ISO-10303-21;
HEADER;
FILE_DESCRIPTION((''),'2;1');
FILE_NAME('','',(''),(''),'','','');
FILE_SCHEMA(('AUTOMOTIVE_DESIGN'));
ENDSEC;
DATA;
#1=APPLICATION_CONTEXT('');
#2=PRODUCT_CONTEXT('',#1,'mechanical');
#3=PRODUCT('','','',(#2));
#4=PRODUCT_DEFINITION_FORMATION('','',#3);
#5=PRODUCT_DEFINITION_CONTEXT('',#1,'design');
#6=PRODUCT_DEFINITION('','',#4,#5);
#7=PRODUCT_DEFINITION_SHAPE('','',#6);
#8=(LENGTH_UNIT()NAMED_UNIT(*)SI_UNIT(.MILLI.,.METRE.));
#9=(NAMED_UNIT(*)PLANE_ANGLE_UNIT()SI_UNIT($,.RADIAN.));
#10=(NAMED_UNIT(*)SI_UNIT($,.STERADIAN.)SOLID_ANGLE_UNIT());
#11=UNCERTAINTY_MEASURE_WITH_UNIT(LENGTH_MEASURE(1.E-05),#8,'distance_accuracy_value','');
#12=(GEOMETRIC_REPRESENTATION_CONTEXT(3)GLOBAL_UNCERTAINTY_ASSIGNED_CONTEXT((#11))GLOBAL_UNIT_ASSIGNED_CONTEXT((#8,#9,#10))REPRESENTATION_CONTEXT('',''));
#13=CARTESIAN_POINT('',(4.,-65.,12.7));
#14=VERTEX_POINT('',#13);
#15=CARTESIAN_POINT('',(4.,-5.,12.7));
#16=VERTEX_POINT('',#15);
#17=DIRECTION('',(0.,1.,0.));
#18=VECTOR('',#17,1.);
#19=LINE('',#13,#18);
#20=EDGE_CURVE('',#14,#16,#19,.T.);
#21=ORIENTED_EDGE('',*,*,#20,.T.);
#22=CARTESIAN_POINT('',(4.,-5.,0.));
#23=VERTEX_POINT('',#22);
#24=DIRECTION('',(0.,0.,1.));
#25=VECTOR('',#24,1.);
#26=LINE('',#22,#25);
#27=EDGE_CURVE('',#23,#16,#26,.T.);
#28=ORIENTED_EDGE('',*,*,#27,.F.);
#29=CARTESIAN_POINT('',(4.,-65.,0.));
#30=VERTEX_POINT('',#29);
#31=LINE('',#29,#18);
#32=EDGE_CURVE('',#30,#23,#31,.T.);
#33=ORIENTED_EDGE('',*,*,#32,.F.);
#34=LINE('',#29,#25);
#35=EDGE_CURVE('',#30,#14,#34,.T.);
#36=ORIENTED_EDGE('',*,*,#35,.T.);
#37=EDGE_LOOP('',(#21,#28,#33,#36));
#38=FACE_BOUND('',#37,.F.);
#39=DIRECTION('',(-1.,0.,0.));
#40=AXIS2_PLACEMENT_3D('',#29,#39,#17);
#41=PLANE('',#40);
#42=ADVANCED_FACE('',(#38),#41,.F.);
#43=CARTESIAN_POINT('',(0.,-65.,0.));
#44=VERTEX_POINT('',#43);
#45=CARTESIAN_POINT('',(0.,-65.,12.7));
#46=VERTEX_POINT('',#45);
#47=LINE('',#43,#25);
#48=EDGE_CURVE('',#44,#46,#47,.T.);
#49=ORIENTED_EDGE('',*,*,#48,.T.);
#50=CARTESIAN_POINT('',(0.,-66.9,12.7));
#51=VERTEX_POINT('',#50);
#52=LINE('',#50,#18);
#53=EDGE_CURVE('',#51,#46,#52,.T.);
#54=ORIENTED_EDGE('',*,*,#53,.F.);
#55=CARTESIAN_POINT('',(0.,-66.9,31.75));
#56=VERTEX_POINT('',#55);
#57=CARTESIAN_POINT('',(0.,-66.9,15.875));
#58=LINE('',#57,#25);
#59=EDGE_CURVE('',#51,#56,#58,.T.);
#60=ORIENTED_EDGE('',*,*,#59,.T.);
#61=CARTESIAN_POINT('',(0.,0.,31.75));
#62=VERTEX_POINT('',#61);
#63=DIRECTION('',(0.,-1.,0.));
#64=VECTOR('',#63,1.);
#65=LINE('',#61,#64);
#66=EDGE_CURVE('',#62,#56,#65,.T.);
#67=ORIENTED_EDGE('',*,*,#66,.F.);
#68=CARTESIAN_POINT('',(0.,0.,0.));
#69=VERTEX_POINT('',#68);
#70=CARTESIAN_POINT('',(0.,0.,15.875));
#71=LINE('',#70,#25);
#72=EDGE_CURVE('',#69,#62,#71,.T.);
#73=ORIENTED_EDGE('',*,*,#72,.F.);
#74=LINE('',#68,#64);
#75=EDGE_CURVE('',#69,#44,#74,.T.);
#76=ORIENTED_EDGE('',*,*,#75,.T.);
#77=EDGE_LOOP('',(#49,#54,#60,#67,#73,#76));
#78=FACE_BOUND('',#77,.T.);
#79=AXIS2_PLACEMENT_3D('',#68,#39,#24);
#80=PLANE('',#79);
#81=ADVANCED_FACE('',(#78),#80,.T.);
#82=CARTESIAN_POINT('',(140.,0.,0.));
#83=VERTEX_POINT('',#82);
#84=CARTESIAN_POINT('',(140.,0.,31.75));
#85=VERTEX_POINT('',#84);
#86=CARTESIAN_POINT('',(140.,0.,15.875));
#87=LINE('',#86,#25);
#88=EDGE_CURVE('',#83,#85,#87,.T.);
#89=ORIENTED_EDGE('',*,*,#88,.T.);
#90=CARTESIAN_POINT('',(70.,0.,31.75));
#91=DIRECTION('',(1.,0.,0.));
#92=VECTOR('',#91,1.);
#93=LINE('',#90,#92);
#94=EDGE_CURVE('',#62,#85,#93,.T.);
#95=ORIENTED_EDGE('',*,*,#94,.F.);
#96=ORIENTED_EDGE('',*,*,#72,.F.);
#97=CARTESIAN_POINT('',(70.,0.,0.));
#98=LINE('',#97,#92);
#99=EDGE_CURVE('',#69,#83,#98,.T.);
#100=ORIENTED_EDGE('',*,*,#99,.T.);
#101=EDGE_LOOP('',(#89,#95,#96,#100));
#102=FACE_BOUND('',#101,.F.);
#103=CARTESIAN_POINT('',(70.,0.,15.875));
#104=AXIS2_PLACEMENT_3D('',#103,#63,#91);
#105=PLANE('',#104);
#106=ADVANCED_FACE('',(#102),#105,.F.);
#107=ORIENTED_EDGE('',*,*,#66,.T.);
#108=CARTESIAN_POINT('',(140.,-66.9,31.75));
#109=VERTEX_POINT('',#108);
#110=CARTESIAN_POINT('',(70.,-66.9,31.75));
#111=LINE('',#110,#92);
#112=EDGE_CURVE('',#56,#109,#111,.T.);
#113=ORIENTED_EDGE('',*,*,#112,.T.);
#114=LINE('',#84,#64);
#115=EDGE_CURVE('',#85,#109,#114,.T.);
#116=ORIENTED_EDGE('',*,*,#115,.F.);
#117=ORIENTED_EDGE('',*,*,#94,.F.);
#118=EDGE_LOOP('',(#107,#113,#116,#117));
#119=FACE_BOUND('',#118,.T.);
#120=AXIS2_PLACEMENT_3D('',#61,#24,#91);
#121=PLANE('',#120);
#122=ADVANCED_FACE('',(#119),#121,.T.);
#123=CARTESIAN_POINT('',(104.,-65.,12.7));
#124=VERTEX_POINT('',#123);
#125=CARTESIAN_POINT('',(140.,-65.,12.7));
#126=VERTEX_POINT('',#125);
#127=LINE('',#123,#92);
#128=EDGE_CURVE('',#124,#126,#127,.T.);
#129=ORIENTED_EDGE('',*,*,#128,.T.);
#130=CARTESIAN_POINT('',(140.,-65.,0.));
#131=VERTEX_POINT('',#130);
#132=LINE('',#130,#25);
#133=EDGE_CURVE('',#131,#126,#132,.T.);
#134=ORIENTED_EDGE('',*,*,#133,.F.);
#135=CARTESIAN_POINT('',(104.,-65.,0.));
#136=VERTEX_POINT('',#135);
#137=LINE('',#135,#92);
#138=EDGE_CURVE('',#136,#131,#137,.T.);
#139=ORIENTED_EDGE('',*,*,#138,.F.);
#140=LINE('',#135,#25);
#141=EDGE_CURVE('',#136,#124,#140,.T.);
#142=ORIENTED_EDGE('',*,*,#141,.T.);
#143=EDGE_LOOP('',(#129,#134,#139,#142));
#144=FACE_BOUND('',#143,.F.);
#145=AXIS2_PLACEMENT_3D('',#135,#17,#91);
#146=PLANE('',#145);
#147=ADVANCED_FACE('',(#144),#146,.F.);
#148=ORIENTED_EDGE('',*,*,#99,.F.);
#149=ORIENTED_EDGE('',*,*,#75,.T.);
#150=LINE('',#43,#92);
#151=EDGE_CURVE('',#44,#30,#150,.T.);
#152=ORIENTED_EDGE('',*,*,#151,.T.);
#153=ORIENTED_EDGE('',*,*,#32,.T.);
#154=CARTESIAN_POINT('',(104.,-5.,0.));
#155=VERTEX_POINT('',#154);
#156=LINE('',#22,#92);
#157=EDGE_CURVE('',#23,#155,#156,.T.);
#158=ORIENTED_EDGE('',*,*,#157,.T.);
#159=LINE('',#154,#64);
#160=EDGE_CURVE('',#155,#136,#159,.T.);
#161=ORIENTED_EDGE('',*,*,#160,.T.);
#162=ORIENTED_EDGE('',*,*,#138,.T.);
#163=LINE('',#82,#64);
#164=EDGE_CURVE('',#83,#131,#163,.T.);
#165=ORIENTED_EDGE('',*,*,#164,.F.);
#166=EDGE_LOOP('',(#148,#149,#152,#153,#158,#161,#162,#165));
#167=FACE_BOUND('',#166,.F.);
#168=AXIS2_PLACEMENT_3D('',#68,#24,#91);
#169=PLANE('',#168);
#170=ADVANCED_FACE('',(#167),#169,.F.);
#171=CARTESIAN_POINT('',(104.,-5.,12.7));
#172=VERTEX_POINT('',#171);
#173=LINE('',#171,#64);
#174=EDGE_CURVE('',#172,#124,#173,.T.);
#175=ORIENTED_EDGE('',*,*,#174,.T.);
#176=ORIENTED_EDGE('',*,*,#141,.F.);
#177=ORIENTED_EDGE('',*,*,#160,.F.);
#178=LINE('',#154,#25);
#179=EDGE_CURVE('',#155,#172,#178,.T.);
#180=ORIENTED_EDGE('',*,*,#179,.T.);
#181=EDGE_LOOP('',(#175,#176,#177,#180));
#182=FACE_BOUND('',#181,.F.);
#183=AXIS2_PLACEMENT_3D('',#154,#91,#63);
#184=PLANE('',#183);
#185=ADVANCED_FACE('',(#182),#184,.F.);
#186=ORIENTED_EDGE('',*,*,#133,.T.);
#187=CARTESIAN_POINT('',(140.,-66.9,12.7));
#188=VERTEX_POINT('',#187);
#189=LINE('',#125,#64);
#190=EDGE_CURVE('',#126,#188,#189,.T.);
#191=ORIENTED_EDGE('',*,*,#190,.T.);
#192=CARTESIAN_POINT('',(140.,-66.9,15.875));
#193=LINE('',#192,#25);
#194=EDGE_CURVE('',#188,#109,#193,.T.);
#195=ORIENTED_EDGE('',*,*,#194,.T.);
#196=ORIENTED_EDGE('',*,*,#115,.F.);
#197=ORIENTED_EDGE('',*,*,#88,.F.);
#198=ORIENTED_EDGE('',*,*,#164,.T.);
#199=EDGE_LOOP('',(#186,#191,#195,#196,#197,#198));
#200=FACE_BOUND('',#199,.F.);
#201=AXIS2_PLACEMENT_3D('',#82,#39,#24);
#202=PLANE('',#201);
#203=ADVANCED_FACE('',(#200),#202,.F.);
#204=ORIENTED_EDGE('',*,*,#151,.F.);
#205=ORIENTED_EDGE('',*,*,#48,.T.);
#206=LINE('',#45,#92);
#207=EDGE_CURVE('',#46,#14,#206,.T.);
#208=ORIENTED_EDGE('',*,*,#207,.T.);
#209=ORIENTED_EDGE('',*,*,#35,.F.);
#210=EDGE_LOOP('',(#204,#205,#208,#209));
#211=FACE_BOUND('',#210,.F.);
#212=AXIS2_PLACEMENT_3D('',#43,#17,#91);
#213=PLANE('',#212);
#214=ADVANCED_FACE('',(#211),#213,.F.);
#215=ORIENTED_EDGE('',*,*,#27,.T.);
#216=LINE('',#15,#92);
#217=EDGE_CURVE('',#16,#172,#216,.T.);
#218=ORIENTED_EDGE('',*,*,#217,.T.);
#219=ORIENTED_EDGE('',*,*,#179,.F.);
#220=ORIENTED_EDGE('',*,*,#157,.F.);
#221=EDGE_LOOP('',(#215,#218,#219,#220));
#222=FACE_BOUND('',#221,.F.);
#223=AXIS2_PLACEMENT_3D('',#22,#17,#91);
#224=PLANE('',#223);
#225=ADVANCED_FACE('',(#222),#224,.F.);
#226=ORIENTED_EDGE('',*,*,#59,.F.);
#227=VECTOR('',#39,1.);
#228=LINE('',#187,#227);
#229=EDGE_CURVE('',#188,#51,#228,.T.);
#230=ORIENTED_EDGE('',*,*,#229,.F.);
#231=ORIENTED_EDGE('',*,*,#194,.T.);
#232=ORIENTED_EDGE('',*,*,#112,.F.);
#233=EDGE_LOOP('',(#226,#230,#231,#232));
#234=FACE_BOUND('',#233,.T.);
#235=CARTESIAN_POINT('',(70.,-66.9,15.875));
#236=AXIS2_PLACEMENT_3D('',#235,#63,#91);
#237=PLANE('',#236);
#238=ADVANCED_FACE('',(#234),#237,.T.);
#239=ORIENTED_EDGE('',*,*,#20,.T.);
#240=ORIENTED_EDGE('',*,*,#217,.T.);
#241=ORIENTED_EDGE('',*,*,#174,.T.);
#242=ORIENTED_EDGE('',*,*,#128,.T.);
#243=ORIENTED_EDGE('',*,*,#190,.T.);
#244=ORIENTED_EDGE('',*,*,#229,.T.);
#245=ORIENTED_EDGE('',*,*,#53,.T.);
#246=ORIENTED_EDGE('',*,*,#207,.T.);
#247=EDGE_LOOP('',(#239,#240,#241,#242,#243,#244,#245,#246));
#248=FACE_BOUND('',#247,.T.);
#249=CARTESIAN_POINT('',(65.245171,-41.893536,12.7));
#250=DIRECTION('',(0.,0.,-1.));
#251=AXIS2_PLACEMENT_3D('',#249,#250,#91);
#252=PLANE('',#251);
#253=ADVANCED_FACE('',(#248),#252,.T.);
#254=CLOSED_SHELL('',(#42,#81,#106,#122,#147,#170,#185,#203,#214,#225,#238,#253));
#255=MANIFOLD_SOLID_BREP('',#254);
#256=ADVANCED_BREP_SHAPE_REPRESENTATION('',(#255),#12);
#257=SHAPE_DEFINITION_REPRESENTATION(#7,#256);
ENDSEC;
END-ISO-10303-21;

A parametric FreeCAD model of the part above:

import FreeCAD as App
import Part
import Sketcher
Q = App.Units.Quantity


def add_polygon(sketch, points):
    """Adds a closed chain of lines whose ends are joined by coincident constraints."""
    first, n = sketch.GeometryCount, len(points)
    for a, b in zip(points, points[1:] + points[:1]):
        sketch.addGeometry(Part.LineSegment(App.Vector(*a, 0), App.Vector(*b, 0)), False)
    for i in range(n):
        sketch.addConstraint(Sketcher.Constraint("Coincident", first + i, 2, first + (i + 1) % n, 1))

doc = App.newDocument("Part")
body = doc.addObject("PartDesign::Body", "Body")

# Sketch on XZ plane
sketch1 = body.newObject("Sketcher::SketchObject", "Sketch")
sketch1.AttachmentSupport = (doc.getObject("XZ_Plane"), [""])
sketch1.MapMode = "FlatFace"
add_polygon(sketch1, [(0, 31.75), (0, 0), (140, 0), (140, 31.75)])  # lines 0-3
sketch1.addConstraint([
    Sketcher.Constraint("Vertical", 0),
    Sketcher.Constraint("Horizontal", 1),
    Sketcher.Constraint("Vertical", 2),
    Sketcher.Constraint("Horizontal", 3),
    Sketcher.Constraint("Coincident", 0, 2, -1, 1),
    Sketcher.Constraint("DistanceX", 1, 1, 1, 2, Q("140 mm")),
    Sketcher.Constraint("DistanceY", 0, 2, 0, 1, Q("31.75 mm")),
])
pad1 = body.newObject("PartDesign::Pad", "Pad")
pad1.Profile = sketch1
pad1.Length = 66.9

# Sketch on XY plane
sketch2 = body.newObject("Sketcher::SketchObject", "Sketch001")
sketch2.AttachmentSupport = (doc.getObject("XY_Plane"), [""])
sketch2.MapMode = "FlatFace"
add_polygon(sketch2, [(0, -66.9), (0, -65), (4, -65), (4, -5), (104, -5), (104, -65), (140, -65), (140, -66.9)])  # lines 0-7
sketch2.addConstraint([
    Sketcher.Constraint("Vertical", 0),
    Sketcher.Constraint("Horizontal", 1),
    Sketcher.Constraint("Vertical", 2),
    Sketcher.Constraint("Horizontal", 3),
    Sketcher.Constraint("Vertical", 4),
    Sketcher.Constraint("Horizontal", 5),
    Sketcher.Constraint("Vertical", 6),
    Sketcher.Constraint("Horizontal", 7),
    Sketcher.Constraint("PointOnObject", 0, 2, -2),
    Sketcher.Constraint("Horizontal", 1, 2, 4, 2),
    Sketcher.Constraint("DistanceX", 1, 1, 1, 2, Q("4 mm")),
    Sketcher.Constraint("DistanceX", 3, 1, 3, 2, Q("100 mm")),
    Sketcher.Constraint("DistanceX", 5, 1, 5, 2, Q("36 mm")),
    Sketcher.Constraint("DistanceY", 2, 1, 2, 2, Q("60 mm")),
    Sketcher.Constraint("DistanceY", 0, 1, 0, 2, Q("1.9 mm")),
    Sketcher.Constraint("DistanceY", 0, 2, -1, 1, Q("65 mm")),
])
pocket1 = body.newObject("PartDesign::Pocket", "Pocket")
pocket1.Profile = sketch2
pocket1.Length = 12.7
pocket1.Reversed = True

doc.recompute()
